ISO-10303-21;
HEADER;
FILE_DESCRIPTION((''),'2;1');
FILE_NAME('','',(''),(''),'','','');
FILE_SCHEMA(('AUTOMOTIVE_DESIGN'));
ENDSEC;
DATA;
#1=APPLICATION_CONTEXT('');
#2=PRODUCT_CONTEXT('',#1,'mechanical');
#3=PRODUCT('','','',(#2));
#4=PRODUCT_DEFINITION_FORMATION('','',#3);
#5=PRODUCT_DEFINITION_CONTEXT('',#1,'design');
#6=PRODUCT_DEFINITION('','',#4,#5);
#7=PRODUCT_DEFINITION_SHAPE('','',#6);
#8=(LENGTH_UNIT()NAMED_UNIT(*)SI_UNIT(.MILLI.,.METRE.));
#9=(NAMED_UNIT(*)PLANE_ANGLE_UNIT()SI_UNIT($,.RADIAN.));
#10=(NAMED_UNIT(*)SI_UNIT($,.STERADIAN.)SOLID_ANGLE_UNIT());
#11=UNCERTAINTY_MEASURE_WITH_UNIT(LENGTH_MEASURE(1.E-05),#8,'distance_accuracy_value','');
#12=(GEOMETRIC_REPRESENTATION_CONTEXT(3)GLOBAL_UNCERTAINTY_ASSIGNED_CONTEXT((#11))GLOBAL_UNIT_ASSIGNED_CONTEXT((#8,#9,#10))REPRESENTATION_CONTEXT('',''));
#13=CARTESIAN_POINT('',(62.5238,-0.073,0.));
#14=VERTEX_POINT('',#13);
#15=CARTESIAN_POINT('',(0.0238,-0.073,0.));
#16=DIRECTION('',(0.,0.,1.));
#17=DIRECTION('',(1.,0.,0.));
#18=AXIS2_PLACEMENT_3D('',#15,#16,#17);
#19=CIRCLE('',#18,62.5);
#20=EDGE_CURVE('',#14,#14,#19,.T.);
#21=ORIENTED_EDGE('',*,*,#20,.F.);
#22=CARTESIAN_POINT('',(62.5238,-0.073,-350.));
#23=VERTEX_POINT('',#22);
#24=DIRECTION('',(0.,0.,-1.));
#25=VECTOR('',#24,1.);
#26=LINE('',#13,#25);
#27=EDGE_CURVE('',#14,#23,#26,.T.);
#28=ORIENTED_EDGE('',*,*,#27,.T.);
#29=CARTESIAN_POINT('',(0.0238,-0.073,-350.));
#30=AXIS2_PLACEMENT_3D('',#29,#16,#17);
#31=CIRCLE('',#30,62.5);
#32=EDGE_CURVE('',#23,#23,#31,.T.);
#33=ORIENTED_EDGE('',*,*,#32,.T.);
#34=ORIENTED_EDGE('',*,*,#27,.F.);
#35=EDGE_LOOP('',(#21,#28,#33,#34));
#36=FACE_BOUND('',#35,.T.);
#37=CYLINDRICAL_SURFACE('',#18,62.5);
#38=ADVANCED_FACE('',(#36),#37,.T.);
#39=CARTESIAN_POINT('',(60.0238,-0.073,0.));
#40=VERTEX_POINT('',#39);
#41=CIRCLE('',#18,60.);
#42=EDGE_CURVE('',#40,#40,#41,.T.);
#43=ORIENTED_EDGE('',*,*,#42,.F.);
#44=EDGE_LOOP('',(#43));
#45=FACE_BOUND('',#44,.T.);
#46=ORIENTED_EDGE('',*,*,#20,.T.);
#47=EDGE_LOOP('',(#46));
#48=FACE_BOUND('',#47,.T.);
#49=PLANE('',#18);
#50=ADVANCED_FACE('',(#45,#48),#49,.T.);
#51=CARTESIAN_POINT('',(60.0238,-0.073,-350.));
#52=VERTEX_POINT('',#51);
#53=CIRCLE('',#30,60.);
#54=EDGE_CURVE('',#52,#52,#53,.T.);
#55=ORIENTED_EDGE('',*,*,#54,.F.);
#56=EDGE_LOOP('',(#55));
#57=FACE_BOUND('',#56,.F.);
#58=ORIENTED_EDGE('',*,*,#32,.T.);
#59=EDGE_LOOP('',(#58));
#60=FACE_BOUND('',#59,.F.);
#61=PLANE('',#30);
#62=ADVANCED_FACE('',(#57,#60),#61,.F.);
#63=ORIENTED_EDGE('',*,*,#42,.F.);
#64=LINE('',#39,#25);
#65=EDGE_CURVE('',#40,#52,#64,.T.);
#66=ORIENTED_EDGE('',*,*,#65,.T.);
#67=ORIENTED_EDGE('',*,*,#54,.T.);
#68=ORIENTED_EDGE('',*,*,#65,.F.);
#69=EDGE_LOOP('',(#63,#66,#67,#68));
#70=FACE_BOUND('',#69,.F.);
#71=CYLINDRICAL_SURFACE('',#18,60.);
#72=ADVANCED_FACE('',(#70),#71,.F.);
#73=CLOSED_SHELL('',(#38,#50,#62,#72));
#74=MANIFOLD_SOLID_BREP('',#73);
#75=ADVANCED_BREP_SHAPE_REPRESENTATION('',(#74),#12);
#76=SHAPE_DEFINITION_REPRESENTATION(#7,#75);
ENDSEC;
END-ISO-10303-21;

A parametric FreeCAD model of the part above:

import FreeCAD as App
import Part
import Sketcher

V = App.Vector


def faces_at(feature, points):
    """Names of the faces that lie closest to the given points."""
    faces = feature.Shape.Faces
    near = lambda p: min(range(len(faces)), key=lambda i: faces[i].distToShape(Part.Vertex(*p))[0])
    return sorted({f"Face{near(p) + 1}" for p in points})

doc = App.newDocument("Part")
body = doc.addObject("PartDesign::Body", "Body")

# Sketch on XY plane
sketch1 = body.newObject("Sketcher::SketchObject", "Sketch")
sketch1.AttachmentSupport = (doc.getObject("XY_Plane"), [""])
sketch1.MapMode = "FlatFace"
sketch1.addGeometry(Part.Circle(V(0.0238, -0.073, 0), V(0, 0, 1), 62.5), False)
sketch1.addConstraint(Sketcher.Constraint("Diameter", 0, 125.0))
sketch1.addConstraint(Sketcher.Constraint("DistanceY", 0, 3, -1, 1, 0.073))
sketch1.addConstraint(Sketcher.Constraint("DistanceX", -1, 1, 0, 3, 0.0238))
pad1 = body.newObject("PartDesign::Pad", "Pad")
pad1.Profile = sketch1
pad1.Length = 350
pad1.Reversed = True
doc.recompute()

thickness = body.newObject("PartDesign::Thickness", "Thickness")
thickness.Base = (pad1, faces_at(pad1, [(-42.893, -40.49, 0), (-42.893, -40.49, -350)]))
thickness.Value = 2.5
thickness.Reversed = True
thickness.Join = "Intersection"

doc.recompute()
